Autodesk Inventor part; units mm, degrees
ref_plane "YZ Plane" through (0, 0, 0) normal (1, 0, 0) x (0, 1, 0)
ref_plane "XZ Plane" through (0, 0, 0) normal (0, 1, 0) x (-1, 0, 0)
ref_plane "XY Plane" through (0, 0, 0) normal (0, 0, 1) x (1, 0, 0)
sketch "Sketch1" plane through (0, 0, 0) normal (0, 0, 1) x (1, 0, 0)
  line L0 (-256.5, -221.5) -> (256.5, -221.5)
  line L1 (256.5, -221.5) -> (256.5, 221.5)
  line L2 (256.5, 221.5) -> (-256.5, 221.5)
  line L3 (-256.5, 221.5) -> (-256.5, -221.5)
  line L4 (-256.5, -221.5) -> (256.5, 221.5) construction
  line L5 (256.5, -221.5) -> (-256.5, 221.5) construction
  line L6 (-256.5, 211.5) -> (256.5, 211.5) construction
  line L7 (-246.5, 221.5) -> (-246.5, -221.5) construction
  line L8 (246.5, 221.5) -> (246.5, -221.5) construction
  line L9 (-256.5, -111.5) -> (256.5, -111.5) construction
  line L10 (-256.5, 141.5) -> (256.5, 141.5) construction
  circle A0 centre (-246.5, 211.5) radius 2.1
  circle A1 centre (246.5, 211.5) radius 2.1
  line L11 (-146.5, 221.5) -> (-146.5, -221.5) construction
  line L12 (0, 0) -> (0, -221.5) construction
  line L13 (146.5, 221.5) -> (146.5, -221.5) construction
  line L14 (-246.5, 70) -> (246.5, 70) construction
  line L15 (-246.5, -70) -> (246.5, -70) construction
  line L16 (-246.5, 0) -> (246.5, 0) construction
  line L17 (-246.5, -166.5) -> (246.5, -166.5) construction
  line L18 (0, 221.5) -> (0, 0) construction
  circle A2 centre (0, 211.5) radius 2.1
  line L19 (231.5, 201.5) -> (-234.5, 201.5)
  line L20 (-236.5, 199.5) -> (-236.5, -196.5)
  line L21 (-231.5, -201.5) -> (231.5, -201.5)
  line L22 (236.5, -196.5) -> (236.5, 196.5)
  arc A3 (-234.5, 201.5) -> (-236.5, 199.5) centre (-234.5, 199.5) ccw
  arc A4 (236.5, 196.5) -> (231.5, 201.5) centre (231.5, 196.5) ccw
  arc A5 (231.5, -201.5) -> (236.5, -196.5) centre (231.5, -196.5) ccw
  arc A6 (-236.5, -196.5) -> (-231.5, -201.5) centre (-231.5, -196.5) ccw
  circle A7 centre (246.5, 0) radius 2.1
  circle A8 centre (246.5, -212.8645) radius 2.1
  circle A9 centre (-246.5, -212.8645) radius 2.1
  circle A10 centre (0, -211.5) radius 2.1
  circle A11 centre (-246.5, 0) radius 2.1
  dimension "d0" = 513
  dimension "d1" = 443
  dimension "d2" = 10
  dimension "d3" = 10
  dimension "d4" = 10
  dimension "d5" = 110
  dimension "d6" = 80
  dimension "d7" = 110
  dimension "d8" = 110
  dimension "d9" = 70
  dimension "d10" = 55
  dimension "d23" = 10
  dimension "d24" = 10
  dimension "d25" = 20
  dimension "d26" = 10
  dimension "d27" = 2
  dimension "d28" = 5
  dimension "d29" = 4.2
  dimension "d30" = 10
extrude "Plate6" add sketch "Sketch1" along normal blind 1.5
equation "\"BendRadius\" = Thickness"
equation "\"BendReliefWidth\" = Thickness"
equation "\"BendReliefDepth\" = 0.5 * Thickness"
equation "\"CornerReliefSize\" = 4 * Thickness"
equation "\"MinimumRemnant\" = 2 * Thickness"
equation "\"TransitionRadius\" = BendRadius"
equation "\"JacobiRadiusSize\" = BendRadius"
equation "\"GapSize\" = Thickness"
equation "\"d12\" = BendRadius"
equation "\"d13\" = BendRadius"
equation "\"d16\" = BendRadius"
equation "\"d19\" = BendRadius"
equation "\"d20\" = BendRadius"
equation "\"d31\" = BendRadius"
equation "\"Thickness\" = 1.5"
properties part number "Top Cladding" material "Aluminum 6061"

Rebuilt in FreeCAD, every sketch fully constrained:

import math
import FreeCAD as App
import Part
import Sketcher

V = App.Vector
Q = App.Units.Quantity


def add_polygon(sketch, points):
    """Adds a closed chain of lines whose ends are joined by coincident constraints."""
    first, n = sketch.GeometryCount, len(points)
    for a, b in zip(points, points[1:] + points[:1]):
        sketch.addGeometry(Part.LineSegment(App.Vector(*a, 0), App.Vector(*b, 0)), False)
    for i in range(n):
        sketch.addConstraint(Sketcher.Constraint("Coincident", first + i, 2, first + (i + 1) % n, 1))

doc = App.newDocument("Part")
params = doc.addObject("Spreadsheet::Sheet", "Params")
for row, (alias, value) in enumerate([
    ("sketch1_radius", "5 mm"),
    ("sketch1_radius2", "2 mm"),
    ("sketch1_diameter", "4.2 mm"),
    ("sketch1_width", "513 mm"),
    ("sketch1_height", "443 mm"),
    ("pad1_length", "1.5 mm"),
], start=1):
    params.set(f"A{row}", alias)
    params.set(f"B{row}", "=" + value)
    params.setAlias(f"B{row}", alias)

body = doc.addObject("PartDesign::Body", "Body")

# Sketch on XY plane
sketch1 = body.newObject("Sketcher::SketchObject", "Sketch")
sketch1.AttachmentSupport = (doc.getObject("XY_Plane"), [""])
sketch1.MapMode = "FlatFace"
add_polygon(sketch1, [(-256.5, 221.5), (-256.5, -221.5), (256.5, -221.5), (256.5, 221.5)])  # lines 0-3
sketch1.addGeometry(Part.Circle(V(-246.5, -212.8645, 0), V(0, 0, 1), 2.1), False)  # 4
sketch1.addGeometry(Part.Circle(V(-246.5, 0, 0), V(0, 0, 1), 2.1), False)  # 5
sketch1.addGeometry(Part.Circle(V(0, -211.5, 0), V(0, 0, 1), 2.1), False)  # 6
sketch1.addGeometry(Part.Circle(V(246.5, -212.8645, 0), V(0, 0, 1), 2.1), False)  # 7
sketch1.addGeometry(Part.LineSegment(V(-234.5, 201.5, 0), V(231.5, 201.5, 0)), False)  # 8
sketch1.addGeometry(Part.ArcOfCircle(Part.Circle(V(231.5, 196.5, 0), V(0, 0, 1), 5), math.radians(0), math.radians(90)), False)  # 9
sketch1.addGeometry(Part.LineSegment(V(236.5, 196.5, 0), V(236.5, -196.5, 0)), False)  # 10
sketch1.addGeometry(Part.ArcOfCircle(Part.Circle(V(231.5, -196.5, 0), V(0, 0, 1), 5), math.radians(-90), math.radians(0)), False)  # 11
sketch1.addGeometry(Part.LineSegment(V(231.5, -201.5, 0), V(-231.5, -201.5, 0)), False)  # 12
sketch1.addGeometry(Part.ArcOfCircle(Part.Circle(V(-231.5, -196.5, 0), V(0, 0, 1), 5), math.radians(180), math.radians(270)), False)  # 13
sketch1.addGeometry(Part.LineSegment(V(-236.5, -196.5, 0), V(-236.5, 199.5, 0)), False)  # 14
sketch1.addGeometry(Part.ArcOfCircle(Part.Circle(V(-234.5, 199.5, 0), V(0, 0, 1), 2), math.radians(90), math.radians(180)), False)  # 15
sketch1.addGeometry(Part.Circle(V(246.5, 0, 0), V(0, 0, 1), 2.1), False)  # 16
sketch1.addGeometry(Part.Circle(V(-246.5, 211.5, 0), V(0, 0, 1), 2.1), False)  # 17
sketch1.addGeometry(Part.Circle(V(0, 211.5, 0), V(0, 0, 1), 2.1), False)  # 18
sketch1.addGeometry(Part.Circle(V(246.5, 211.5, 0), V(0, 0, 1), 2.1), False)  # 19
sketch1.addConstraint(Sketcher.Constraint("Tangent", 8, 2, 9, 2))
sketch1.addConstraint(Sketcher.Constraint("Tangent", 9, 1, 10, 1))
sketch1.addConstraint(Sketcher.Constraint("Tangent", 10, 2, 11, 2))
sketch1.addConstraint(Sketcher.Constraint("Tangent", 11, 1, 12, 1))
sketch1.addConstraint(Sketcher.Constraint("Tangent", 12, 2, 13, 2))
sketch1.addConstraint(Sketcher.Constraint("Tangent", 13, 1, 14, 1))
sketch1.addConstraint(Sketcher.Constraint("Tangent", 14, 2, 15, 2))
sketch1.addConstraint(Sketcher.Constraint("Tangent", 15, 1, 8, 1))
sketch1.addConstraint(Sketcher.Constraint("Vertical", 0))
sketch1.addConstraint(Sketcher.Constraint("Horizontal", 1))
sketch1.addConstraint(Sketcher.Constraint("Vertical", 2))
sketch1.addConstraint(Sketcher.Constraint("Horizontal", 3))
sketch1.addConstraint(Sketcher.Constraint("Horizontal", 8))
sketch1.addConstraint(Sketcher.Constraint("Vertical", 10))
sketch1.addConstraint(Sketcher.Constraint("Horizontal", 12))
sketch1.addConstraint(Sketcher.Constraint("Vertical", 14))
sketch1.addConstraint(Sketcher.Constraint("Equal", 4, 5))
sketch1.addConstraint(Sketcher.Constraint("Equal", 5, 6))
sketch1.addConstraint(Sketcher.Constraint("Equal", 6, 7))
sketch1.addConstraint(Sketcher.Constraint("Equal", 9, 11))
sketch1.addConstraint(Sketcher.Constraint("Equal", 11, 13))
sketch1.addConstraint(Sketcher.Constraint("Equal", 7, 16))
sketch1.addConstraint(Sketcher.Constraint("Equal", 16, 17))
sketch1.addConstraint(Sketcher.Constraint("Equal", 17, 18))
sketch1.addConstraint(Sketcher.Constraint("Equal", 18, 19))
sketch1.addConstraint(Sketcher.Constraint("Symmetric", 9, 3, 13, 3, -1, 1))
sketch1.addConstraint(Sketcher.Constraint("Symmetric", 5, 3, 16, 3, -1, 1))
sketch1.addConstraint(Sketcher.Constraint("Symmetric", 6, 3, 18, 3, -1, 1))
sketch1.addConstraint(Sketcher.Constraint("Symmetric", 0, 2, 2, 2, -1, 1))
sketch1.addConstraint(Sketcher.Constraint("Symmetric", 4, 3, 7, 3, -2))
sketch1.addConstraint(Sketcher.Constraint("Symmetric", 17, 3, 19, 3, -2))
sketch1.addConstraint(Sketcher.Constraint("PointOnObject", 5, 3, -1))
sketch1.addConstraint(Sketcher.Constraint("PointOnObject", 6, 3, -2))
sketch1.addConstraint(Sketcher.Constraint("Horizontal", 17, 3, 18, 3))
sketch1.addConstraint(Sketcher.Constraint("Vertical", 4, 3, 5, 3))
sketch1.addConstraint(Sketcher.Constraint("Vertical", 5, 3, 17, 3))
sketch1.addConstraint(Sketcher.Constraint("Radius", 9, Q("5 mm")))
sketch1.addConstraint(Sketcher.Constraint("Radius", 15, Q("2 mm")))
sketch1.addConstraint(Sketcher.Constraint("Diameter", 4, Q("4.2 mm")))
sketch1.addConstraint(Sketcher.Constraint("DistanceX", 1, 1, 1, 2, Q("513 mm")))
sketch1.addConstraint(Sketcher.Constraint("DistanceY", 0, 2, 0, 1, Q("443 mm")))
sketch1.addConstraint(Sketcher.Constraint("DistanceX", 0, 2, 4, 3, Q("10 mm")))
sketch1.addConstraint(Sketcher.Constraint("DistanceY", 0, 2, 6, 3, Q("10 mm")))
sketch1.addConstraint(Sketcher.Constraint("DistanceY", 8, 2, 19, 3, Q("10 mm")))
sketch1.addConstraint(Sketcher.Constraint("DistanceX", 9, 1, 19, 3, Q("10 mm")))
sketch1.addConstraint(Sketcher.Constraint("DistanceY", 4, 3, -1, 1, Q("212.8645 mm")))
sketch1.setExpression("Constraints[40]", "Params.sketch1_radius")
sketch1.setExpression("Constraints[41]", "Params.sketch1_radius2")
sketch1.setExpression("Constraints[42]", "Params.sketch1_diameter")
sketch1.setExpression("Constraints[43]", "Params.sketch1_width")
sketch1.setExpression("Constraints[44]", "Params.sketch1_height")
pad1 = body.newObject("PartDesign::Pad", "Pad")
pad1.Profile = sketch1
pad1.setExpression("Length", "Params.pad1_length")

doc.recompute()
